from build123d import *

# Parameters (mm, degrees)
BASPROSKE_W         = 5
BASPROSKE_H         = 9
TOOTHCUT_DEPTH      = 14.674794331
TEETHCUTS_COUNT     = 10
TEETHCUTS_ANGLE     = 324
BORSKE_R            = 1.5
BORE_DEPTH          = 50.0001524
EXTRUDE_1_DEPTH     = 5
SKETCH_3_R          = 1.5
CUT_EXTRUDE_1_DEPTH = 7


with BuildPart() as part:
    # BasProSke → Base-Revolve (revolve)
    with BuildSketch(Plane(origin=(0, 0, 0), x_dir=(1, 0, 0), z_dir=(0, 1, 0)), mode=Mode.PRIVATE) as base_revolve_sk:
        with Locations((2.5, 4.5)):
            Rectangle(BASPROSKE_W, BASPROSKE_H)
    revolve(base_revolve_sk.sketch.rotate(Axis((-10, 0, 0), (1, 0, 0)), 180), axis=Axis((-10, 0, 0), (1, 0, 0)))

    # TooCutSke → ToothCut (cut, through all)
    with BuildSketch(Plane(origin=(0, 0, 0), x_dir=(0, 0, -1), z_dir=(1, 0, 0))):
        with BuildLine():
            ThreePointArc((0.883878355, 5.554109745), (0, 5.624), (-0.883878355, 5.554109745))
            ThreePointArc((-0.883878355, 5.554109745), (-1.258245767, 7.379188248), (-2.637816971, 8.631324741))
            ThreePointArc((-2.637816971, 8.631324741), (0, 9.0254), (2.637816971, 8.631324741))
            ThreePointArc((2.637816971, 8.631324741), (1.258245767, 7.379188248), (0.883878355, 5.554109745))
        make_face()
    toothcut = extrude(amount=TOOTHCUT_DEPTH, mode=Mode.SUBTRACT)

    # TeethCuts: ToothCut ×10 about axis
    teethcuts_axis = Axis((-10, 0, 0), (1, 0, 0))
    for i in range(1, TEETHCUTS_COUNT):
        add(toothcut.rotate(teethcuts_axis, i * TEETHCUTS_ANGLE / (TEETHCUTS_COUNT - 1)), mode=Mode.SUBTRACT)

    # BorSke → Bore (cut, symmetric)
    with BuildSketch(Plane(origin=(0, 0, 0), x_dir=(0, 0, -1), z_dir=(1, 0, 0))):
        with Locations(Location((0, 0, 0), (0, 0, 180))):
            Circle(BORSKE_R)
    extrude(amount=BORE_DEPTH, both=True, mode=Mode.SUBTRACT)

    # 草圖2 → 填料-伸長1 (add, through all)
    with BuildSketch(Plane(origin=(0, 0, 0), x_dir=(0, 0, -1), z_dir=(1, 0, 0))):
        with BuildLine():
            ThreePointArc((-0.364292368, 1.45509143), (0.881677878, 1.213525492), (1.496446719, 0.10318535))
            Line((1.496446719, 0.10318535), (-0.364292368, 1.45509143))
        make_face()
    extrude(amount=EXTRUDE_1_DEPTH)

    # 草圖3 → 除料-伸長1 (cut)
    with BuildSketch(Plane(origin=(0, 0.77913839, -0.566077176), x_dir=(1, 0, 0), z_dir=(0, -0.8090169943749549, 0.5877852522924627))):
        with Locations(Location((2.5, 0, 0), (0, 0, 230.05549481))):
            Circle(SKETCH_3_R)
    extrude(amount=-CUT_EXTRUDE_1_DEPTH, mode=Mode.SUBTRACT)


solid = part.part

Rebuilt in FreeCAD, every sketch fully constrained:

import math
import FreeCAD as App
import Part
import Sketcher
from FreeCAD import Vector
Q = App.Units.Quantity


def add_polygon(sketch, points):
    """Adds a closed chain of lines whose ends are joined by coincident constraints."""
    first, n = sketch.GeometryCount, len(points)
    for a, b in zip(points, points[1:] + points[:1]):
        sketch.addGeometry(Part.LineSegment(App.Vector(*a, 0), App.Vector(*b, 0)), False)
    for i in range(n):
        sketch.addConstraint(Sketcher.Constraint("Coincident", first + i, 2, first + (i + 1) % n, 1))

doc = App.newDocument("Part")
body = doc.addObject("PartDesign::Body", "Body")

# Sketch on XZ plane
sketch1 = body.newObject("Sketcher::SketchObject", "Sketch")
sketch1.AttachmentSupport = (doc.getObject("XZ_Plane"), [""])
sketch1.MapMode = "FlatFace"
add_polygon(sketch1, [(0, -9), (0, 0), (5, 0), (5, -9)])  # lines 0-3
sketch1.addConstraint([
    Sketcher.Constraint("Vertical", 0),
    Sketcher.Constraint("Horizontal", 1),
    Sketcher.Constraint("Vertical", 2),
    Sketcher.Constraint("Horizontal", 3),
    Sketcher.Constraint("Coincident", 0, 2, -1, 1),
    Sketcher.Constraint("DistanceX", 1, 1, 1, 2, Q("5 mm")),
    Sketcher.Constraint("DistanceY", 0, 1, 0, 2, Q("9 mm")),
])
revolution = body.newObject("PartDesign::Revolution", "Revolution")
revolution.Profile = sketch1
revolution.ReferenceAxis = (sketch1, ["H_Axis"])
revolution.Angle = 360

# Sketch on YZ plane
sketch2 = body.newObject("Sketcher::SketchObject", "Sketch001")
sketch2.AttachmentSupport = (doc.getObject("YZ_Plane"), [""])
sketch2.MapMode = "FlatFace"
sketch2.addGeometry([
    Part.ArcOfCircle(Part.Circle(Vector(0, 0, 0), Vector(0, 0, 1), 5.6), math.radians(-9.04), math.radians(9.04)),
    Part.ArcOfCircle(Part.Circle(Vector(5.9, -3.9, 0), Vector(0, 0, 1), 3), math.radians(24), math.radians(96)),
    Part.ArcOfCircle(Part.Circle(Vector(0, 0, 0), Vector(0, 0, 1), 9), math.radians(-17), math.radians(17)),
    Part.ArcOfCircle(Part.Circle(Vector(5.9, 3.9, 0), Vector(0, 0, 1), 3), math.radians(-96), math.radians(-24)),
], False)
sketch2.addConstraint([
    Sketcher.Constraint("Coincident", 0, 1, 1, 2),
    Sketcher.Constraint("Coincident", 1, 1, 2, 1),
    Sketcher.Constraint("Coincident", 2, 2, 3, 2),
    Sketcher.Constraint("Coincident", 3, 1, 0, 2),
    Sketcher.Constraint("Coincident", 0, 3, -1, 1),
    Sketcher.Constraint("Coincident", 2, 3, -1, 1),
    Sketcher.Constraint("Equal", 1, 3),
    Sketcher.Constraint("Symmetric", 1, 3, 3, 3, -1),
    Sketcher.Constraint("Radius", 1, Q("3 mm")),
    Sketcher.Constraint("Radius", 0, Q("5.624 mm")),
    Sketcher.Constraint("Radius", 2, Q("9.0254 mm")),
    Sketcher.Constraint("DistanceX", 1, 3, 1, 1, Q("2.737698 mm")),
    Sketcher.Constraint("DistanceX", -1, 1, 0, 1, Q("5.55411 mm")),
])
pocket1 = body.newObject("PartDesign::Pocket", "Pocket")
pocket1.Profile = sketch2
pocket1.Type = "ThroughAll"
pocket1.Reversed = True
doc.recompute()

polarpattern = body.newObject("PartDesign::PolarPattern", "PolarPattern")
polarpattern.Originals = [pocket1]
polarpattern.Axis = (doc.getObject("X_Axis"), [""])
polarpattern.Angle = 360
polarpattern.Occurrences = 10
body.Tip = polarpattern

# Sketch on YZ plane
sketch3 = body.newObject("Sketcher::SketchObject", "Sketch002")
sketch3.AttachmentSupport = (doc.getObject("YZ_Plane"), [""])
sketch3.MapMode = "FlatFace"
sketch3.addGeometry(Part.Circle(Vector(0, 0, 0), Vector(0, 0, 1), 1.5), False)
sketch3.addConstraint([
    Sketcher.Constraint("Coincident", 0, 3, -1, 1),
    Sketcher.Constraint("Diameter", 0, Q("3 mm")),
])
pocket2 = body.newObject("PartDesign::Pocket", "Pocket001")
pocket2.Profile = sketch3
pocket2.Length = 100.000305
pocket2.Midplane = True

# Sketch on YZ plane
sketch4 = body.newObject("Sketcher::SketchObject", "Sketch003")
sketch4.AttachmentSupport = (doc.getObject("YZ_Plane"), [""])
sketch4.MapMode = "FlatFace"
sketch4.addGeometry([
    Part.ArcOfCircle(Part.Circle(Vector(0, 0, 0), Vector(0, 0, 1), 1.5), math.radians(-86), math.radians(14)),
    Part.LineSegment(Vector(1.5, 0.4, 0), Vector(0.1, -1.5, 0)),
], False)
sketch4.addConstraint([
    Sketcher.Constraint("Coincident", 0, 1, 1, 2),
    Sketcher.Constraint("Coincident", 1, 1, 0, 2),
    Sketcher.Constraint("Coincident", 0, 3, -1, 1),
    Sketcher.Constraint("Radius", 0, Q("1.5 mm")),
    Sketcher.Constraint("Angle", 1, Q("-126 deg")),
    Sketcher.Constraint("Distance", 1, Q("2.3 mm")),
])
pad1 = body.newObject("PartDesign::Pad", "Pad")
pad1.Profile = sketch4
pad1.Length = 5

# Sketch on an angled plane
sketch5 = body.newObject("Sketcher::SketchObject", "Sketch004")
sketch5.Placement = App.Placement(Vector(0, 0.779138, -0.566077), App.Rotation(Vector(1, 0, 0), Vector(0, 0.587785252, 0.809016994), Vector(0, -0.809016994, 0.587785252), "ZXY"))
sketch5.addGeometry(Part.Circle(Vector(2.5, 0, 0), Vector(0, 0, 1), 1.5), False)
sketch5.addConstraint([
    Sketcher.Constraint("PointOnObject", 0, 3, -1),
    Sketcher.Constraint("Diameter", 0, Q("3 mm")),
    Sketcher.Constraint("DistanceX", -1, 1, 0, 3, Q("2.5 mm")),
])
pocket3 = body.newObject("PartDesign::Pocket", "Pocket002")
pocket3.Profile = sketch5
pocket3.Length = 7

doc.recompute()
